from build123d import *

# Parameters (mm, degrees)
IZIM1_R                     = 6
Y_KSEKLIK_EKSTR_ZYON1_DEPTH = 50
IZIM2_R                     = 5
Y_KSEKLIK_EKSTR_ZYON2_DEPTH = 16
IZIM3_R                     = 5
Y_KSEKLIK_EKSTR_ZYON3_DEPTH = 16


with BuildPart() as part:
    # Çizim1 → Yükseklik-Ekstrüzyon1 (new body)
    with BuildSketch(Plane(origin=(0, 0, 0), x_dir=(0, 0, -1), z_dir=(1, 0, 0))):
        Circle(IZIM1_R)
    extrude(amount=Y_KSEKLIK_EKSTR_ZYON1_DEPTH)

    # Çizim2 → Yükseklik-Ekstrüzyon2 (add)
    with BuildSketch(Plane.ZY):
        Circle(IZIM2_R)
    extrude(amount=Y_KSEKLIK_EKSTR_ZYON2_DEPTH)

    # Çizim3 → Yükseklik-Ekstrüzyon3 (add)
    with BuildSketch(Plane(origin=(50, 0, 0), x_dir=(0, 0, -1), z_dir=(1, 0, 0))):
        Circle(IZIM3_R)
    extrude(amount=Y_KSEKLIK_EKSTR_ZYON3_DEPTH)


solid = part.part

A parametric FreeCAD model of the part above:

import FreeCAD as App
import Part
import Sketcher
from FreeCAD import Vector
Q = App.Units.Quantity

doc = App.newDocument("Part")
body = doc.addObject("PartDesign::Body", "Body")

# Sketch on YZ plane
sketch1 = doc.addObject("Sketcher::SketchObject", "Sketch")
body.addObject(sketch1)
sketch1.AttachmentSupport = (doc.YZ_Plane, [""])
sketch1.MapMode = "FlatFace"
sketch1.addGeometry(Part.Circle(Vector(0, 0, 0), Vector(0, 0, 1), 6), False)
sketch1.addConstraint([
    Sketcher.Constraint("Coincident", 0, 3, -1, 1),
    Sketcher.Constraint("Diameter", 0, Q("12 mm")),
])
pad1 = doc.addObject("PartDesign::Pad", "Pad")
body.addObject(pad1)
pad1.Profile = sketch1
pad1.Length = 50

# Sketch on YZ plane
sketch2 = doc.addObject("Sketcher::SketchObject", "Sketch001")
body.addObject(sketch2)
sketch2.AttachmentSupport = (doc.YZ_Plane, [""])
sketch2.MapMode = "FlatFace"
sketch2.addGeometry(Part.Circle(Vector(0, 0, 0), Vector(0, 0, 1), 5), False)
sketch2.addConstraint([
    Sketcher.Constraint("Coincident", 0, 3, -1, 1),
    Sketcher.Constraint("Diameter", 0, Q("10 mm")),
])
pad2 = doc.addObject("PartDesign::Pad", "Pad001")
body.addObject(pad2)
pad2.Profile = sketch2
pad2.Length = 16
pad2.Reversed = True

# Sketch on YZ plane
sketch3 = doc.addObject("Sketcher::SketchObject", "Sketch002")
body.addObject(sketch3)
sketch3.AttachmentSupport = (doc.YZ_Plane, [""])
sketch3.MapMode = "FlatFace"
sketch3.AttachmentOffset = App.Placement(Vector(0, 0, 50), App.Rotation())
sketch3.addGeometry(Part.Circle(Vector(0, 0, 0), Vector(0, 0, 1), 5), False)
sketch3.addConstraint([
    Sketcher.Constraint("Coincident", 0, 3, -1, 1),
    Sketcher.Constraint("Diameter", 0, Q("10 mm")),
])
pad3 = doc.addObject("PartDesign::Pad", "Pad002")
body.addObject(pad3)
pad3.Profile = sketch3
pad3.Length = 16

doc.recompute()
